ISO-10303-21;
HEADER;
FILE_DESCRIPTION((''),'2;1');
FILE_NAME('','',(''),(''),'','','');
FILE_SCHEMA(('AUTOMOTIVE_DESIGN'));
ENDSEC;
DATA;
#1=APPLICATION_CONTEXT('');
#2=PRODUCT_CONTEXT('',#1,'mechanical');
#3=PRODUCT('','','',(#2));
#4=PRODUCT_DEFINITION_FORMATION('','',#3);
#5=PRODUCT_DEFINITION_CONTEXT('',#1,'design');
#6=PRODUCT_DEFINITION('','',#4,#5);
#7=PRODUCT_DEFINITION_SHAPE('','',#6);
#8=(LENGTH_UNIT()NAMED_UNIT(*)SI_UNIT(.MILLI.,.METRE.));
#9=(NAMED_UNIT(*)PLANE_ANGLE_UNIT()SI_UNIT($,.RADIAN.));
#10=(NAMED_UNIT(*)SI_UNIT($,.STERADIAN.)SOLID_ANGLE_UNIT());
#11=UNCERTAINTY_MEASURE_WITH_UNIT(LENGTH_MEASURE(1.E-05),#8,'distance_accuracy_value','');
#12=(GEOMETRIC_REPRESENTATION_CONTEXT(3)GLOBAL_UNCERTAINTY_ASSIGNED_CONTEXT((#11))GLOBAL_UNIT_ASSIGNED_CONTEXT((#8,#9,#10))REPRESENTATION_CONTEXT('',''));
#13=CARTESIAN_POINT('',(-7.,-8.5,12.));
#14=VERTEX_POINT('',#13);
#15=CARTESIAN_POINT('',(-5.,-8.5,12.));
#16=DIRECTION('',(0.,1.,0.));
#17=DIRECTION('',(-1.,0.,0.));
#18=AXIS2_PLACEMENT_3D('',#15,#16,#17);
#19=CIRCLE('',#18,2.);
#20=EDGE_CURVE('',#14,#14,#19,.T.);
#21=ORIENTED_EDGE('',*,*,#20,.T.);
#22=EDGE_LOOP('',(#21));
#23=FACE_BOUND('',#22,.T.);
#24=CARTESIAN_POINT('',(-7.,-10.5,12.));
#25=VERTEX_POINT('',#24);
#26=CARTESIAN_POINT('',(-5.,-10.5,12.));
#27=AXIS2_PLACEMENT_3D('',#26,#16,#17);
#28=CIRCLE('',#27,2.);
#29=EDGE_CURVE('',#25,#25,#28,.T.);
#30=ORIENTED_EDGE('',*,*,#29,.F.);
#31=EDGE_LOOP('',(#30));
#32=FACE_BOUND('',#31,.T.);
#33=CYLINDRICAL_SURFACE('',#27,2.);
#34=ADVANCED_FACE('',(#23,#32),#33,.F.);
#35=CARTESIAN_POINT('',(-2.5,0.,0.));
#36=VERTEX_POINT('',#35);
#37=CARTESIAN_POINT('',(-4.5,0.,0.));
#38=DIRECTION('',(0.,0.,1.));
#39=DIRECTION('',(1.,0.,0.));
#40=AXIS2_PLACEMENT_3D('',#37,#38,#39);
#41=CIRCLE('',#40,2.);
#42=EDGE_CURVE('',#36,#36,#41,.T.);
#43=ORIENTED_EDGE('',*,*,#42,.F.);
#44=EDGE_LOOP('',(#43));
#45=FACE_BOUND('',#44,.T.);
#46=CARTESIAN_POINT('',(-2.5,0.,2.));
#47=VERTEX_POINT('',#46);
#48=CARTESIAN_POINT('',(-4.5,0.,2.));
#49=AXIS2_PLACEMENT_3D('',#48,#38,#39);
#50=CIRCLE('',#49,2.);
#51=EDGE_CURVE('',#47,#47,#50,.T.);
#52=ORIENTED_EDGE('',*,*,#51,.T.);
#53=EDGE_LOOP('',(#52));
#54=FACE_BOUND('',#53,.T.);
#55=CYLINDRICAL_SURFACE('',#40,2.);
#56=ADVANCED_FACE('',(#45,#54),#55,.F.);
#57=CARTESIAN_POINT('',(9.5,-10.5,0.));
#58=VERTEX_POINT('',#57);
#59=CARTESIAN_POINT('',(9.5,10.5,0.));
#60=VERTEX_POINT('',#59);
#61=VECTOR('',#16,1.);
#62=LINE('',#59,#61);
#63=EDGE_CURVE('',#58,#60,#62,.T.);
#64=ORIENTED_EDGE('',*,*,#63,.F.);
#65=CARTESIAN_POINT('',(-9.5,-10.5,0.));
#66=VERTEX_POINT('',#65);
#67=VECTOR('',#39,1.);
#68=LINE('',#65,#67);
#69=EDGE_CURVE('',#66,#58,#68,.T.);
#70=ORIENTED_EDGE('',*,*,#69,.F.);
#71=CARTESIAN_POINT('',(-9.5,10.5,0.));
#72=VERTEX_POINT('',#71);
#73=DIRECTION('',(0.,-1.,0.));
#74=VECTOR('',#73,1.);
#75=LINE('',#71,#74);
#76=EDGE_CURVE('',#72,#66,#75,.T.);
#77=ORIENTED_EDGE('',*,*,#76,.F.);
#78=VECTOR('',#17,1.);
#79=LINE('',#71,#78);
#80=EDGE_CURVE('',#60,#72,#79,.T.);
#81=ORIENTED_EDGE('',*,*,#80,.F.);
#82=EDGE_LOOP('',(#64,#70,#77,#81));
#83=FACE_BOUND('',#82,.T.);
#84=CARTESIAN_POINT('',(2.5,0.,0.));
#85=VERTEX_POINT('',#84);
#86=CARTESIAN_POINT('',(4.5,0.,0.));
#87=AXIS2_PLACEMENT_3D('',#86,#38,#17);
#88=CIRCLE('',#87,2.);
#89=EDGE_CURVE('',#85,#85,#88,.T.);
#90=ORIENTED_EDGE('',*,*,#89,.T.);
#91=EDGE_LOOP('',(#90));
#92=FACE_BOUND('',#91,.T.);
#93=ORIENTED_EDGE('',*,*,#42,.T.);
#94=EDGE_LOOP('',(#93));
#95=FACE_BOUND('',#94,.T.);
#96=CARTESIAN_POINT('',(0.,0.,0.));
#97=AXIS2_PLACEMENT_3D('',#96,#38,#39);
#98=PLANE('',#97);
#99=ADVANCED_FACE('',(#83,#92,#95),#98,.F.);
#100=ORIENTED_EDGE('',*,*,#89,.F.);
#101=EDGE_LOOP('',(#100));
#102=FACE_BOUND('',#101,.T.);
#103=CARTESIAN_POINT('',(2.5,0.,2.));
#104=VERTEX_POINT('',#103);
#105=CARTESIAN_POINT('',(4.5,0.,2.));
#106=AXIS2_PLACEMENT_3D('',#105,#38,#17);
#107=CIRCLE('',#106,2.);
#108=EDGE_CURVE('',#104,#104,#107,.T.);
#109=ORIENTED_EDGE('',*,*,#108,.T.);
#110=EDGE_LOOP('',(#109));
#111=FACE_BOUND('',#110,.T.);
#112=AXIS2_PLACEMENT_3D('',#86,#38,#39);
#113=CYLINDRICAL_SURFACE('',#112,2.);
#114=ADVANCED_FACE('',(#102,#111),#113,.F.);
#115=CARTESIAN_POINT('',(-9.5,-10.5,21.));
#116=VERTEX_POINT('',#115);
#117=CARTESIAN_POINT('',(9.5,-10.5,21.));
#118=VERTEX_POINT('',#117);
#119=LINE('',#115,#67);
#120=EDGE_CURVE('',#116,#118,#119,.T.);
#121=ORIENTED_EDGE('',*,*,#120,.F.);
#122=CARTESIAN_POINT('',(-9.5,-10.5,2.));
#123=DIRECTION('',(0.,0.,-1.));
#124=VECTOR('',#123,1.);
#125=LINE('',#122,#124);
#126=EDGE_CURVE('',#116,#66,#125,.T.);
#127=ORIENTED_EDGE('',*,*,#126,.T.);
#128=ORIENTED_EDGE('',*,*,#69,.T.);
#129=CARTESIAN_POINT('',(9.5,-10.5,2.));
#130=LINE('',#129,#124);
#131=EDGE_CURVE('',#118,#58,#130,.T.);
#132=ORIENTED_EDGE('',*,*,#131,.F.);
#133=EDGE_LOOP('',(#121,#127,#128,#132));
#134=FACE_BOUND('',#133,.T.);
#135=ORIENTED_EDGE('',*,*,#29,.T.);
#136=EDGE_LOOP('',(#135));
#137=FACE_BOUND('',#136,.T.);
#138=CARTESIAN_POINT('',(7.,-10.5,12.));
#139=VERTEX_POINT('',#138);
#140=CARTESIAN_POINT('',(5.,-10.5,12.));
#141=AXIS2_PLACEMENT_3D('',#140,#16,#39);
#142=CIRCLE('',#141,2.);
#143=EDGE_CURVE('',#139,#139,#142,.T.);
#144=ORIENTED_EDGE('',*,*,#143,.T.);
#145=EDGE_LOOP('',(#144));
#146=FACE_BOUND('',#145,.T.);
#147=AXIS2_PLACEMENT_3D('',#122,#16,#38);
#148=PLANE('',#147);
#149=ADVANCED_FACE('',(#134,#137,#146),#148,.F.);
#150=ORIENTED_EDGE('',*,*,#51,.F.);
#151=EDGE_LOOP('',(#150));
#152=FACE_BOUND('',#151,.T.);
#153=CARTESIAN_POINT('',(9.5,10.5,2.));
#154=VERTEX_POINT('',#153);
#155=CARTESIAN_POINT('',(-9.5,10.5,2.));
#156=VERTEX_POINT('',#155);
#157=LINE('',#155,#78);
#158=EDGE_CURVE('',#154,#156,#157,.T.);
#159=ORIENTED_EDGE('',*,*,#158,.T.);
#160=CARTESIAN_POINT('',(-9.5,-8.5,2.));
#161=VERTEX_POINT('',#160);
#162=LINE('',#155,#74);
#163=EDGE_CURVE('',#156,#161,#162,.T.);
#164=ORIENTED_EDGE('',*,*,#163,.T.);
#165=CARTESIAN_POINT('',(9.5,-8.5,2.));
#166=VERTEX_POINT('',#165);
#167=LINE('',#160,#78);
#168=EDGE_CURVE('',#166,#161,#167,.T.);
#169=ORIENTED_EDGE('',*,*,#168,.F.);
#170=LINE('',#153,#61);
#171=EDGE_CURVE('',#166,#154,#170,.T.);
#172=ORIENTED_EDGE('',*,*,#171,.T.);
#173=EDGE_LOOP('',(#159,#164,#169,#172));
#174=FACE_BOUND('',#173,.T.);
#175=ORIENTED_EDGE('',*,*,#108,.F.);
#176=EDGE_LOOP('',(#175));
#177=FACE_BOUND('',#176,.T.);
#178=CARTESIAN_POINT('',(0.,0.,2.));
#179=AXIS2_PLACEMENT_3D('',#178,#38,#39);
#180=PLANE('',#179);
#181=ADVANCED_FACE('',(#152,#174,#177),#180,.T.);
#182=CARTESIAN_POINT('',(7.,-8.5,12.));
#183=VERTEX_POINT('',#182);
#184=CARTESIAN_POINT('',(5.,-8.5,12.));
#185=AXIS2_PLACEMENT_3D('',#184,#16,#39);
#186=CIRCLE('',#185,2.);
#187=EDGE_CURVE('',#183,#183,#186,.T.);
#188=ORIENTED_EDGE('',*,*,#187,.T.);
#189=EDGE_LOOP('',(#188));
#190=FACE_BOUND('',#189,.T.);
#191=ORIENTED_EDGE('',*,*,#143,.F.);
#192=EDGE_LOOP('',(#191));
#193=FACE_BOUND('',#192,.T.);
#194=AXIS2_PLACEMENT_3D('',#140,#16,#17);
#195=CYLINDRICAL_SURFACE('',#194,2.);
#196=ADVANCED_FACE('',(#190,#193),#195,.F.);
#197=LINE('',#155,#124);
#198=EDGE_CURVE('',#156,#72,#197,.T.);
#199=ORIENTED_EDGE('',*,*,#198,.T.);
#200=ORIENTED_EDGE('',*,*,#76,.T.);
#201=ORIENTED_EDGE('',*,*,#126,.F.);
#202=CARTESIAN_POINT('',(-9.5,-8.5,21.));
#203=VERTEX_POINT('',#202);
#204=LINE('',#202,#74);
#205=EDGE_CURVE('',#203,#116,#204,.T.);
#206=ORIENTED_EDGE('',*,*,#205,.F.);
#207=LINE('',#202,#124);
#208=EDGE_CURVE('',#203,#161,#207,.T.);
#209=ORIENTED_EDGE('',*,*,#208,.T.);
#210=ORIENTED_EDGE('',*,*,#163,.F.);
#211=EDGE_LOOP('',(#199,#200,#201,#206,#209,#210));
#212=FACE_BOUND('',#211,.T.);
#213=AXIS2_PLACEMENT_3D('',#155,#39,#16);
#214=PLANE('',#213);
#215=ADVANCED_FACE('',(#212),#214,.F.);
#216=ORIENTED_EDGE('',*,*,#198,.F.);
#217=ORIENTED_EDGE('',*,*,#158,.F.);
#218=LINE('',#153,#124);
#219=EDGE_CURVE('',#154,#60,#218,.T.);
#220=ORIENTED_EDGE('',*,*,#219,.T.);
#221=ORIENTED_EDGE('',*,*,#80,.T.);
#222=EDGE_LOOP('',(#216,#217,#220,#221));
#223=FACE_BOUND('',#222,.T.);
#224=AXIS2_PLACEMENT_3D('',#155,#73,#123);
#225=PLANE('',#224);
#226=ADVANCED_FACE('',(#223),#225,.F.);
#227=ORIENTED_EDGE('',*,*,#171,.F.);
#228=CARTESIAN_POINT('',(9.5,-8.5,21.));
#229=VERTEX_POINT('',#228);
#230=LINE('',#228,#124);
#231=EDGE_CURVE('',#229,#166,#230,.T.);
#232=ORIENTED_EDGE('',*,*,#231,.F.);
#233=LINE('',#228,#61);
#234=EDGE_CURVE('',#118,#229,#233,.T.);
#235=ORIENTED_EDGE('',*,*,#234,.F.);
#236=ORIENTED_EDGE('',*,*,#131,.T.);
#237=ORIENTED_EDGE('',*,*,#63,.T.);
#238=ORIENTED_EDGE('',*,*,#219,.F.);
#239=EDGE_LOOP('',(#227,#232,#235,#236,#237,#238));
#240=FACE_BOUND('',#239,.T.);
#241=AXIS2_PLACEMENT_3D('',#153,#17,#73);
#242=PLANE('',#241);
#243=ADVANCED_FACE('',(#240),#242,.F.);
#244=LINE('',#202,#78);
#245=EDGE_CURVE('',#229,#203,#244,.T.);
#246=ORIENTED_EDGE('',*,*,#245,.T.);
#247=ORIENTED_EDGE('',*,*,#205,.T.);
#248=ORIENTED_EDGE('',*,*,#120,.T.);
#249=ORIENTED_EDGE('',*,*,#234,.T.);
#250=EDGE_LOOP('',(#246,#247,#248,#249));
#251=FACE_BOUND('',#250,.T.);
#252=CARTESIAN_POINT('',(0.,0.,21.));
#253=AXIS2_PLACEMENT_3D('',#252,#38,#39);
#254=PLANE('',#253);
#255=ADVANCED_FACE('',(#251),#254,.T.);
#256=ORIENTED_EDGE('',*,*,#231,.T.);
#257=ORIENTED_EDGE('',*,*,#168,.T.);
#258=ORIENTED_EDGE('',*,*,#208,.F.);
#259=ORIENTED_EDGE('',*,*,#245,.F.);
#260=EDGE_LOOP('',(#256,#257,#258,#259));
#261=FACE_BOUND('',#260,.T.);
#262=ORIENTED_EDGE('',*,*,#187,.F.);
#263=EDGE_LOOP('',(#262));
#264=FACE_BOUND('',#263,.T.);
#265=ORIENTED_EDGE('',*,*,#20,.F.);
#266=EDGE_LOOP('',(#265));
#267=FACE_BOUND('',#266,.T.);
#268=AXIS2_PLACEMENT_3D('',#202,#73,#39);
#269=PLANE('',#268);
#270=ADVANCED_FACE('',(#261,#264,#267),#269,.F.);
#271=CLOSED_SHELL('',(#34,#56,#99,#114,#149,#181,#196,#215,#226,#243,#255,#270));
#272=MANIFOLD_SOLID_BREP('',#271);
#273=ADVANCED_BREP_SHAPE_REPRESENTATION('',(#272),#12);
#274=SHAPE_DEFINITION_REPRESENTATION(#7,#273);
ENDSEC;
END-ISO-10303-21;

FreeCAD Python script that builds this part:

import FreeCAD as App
import Part
import Sketcher
from FreeCAD import Vector

doc = App.newDocument("Part")
body = doc.addObject("PartDesign::Body", "Body")

# Sketch on XY plane
sketch1 = body.newObject("Sketcher::SketchObject", "Sketch")
sketch1.AttachmentSupport = (doc.getObject("XY_Plane"), [""])
sketch1.MapMode = "FlatFace"
sketch1.addGeometry(Part.LineSegment(Vector(-9.5, 10.5, 0), Vector(-9.5, -10.5, 0)), False)
sketch1.addGeometry(Part.LineSegment(Vector(-9.5, -10.5, 0), Vector(9.5, -10.5, 0)), False)
sketch1.addGeometry(Part.LineSegment(Vector(9.5, -10.5, 0), Vector(9.5, 10.5, 0)), False)
sketch1.addGeometry(Part.LineSegment(Vector(9.5, 10.5, 0), Vector(-9.5, 10.5, 0)), False)
sketch1.addConstraint(Sketcher.Constraint("Coincident", 0, 2, 1, 1))
sketch1.addConstraint(Sketcher.Constraint("Coincident", 1, 2, 2, 1))
sketch1.addConstraint(Sketcher.Constraint("Coincident", 2, 2, 3, 1))
sketch1.addConstraint(Sketcher.Constraint("Coincident", 3, 2, 0, 1))
sketch1.addConstraint(Sketcher.Constraint("Vertical", 0))
sketch1.addConstraint(Sketcher.Constraint("Horizontal", 1))
sketch1.addConstraint(Sketcher.Constraint("Vertical", 2))
sketch1.addConstraint(Sketcher.Constraint("Horizontal", 3))
sketch1.addConstraint(Sketcher.Constraint("Symmetric", 0, 2, 2, 2, -1, 1))
sketch1.addConstraint(Sketcher.Constraint("DistanceX", 1, 1, 1, 2, 19.0))
sketch1.addConstraint(Sketcher.Constraint("DistanceY", 0, 2, 0, 1, 21.0))
pad1 = body.newObject("PartDesign::Pad", "Pad")
pad1.Profile = sketch1
pad1.Length = 2

# Sketch on XY plane
sketch2 = body.newObject("Sketcher::SketchObject", "Sketch001")
sketch2.AttachmentSupport = (doc.getObject("XY_Plane"), [""])
sketch2.MapMode = "FlatFace"
sketch2.AttachmentOffset = App.Placement(Vector(0, 0, 2), App.Rotation())
sketch2.addGeometry(Part.LineSegment(Vector(-9.5, -8.5, 0), Vector(-9.5, -10.5, 0)), False)
sketch2.addGeometry(Part.LineSegment(Vector(-9.5, -10.5, 0), Vector(9.5, -10.5, 0)), False)
sketch2.addGeometry(Part.LineSegment(Vector(9.5, -10.5, 0), Vector(9.5, -8.5, 0)), False)
sketch2.addGeometry(Part.LineSegment(Vector(9.5, -8.5, 0), Vector(-9.5, -8.5, 0)), False)
sketch2.addConstraint(Sketcher.Constraint("Coincident", 0, 2, 1, 1))
sketch2.addConstraint(Sketcher.Constraint("Coincident", 1, 2, 2, 1))
sketch2.addConstraint(Sketcher.Constraint("Coincident", 2, 2, 3, 1))
sketch2.addConstraint(Sketcher.Constraint("Coincident", 3, 2, 0, 1))
sketch2.addConstraint(Sketcher.Constraint("Vertical", 0))
sketch2.addConstraint(Sketcher.Constraint("Horizontal", 1))
sketch2.addConstraint(Sketcher.Constraint("Vertical", 2))
sketch2.addConstraint(Sketcher.Constraint("Horizontal", 3))
sketch2.addConstraint(Sketcher.Constraint("DistanceX", 1, 1, 1, 2, 19.0))
sketch2.addConstraint(Sketcher.Constraint("DistanceY", 0, 2, 0, 1, 2.0))
sketch2.addConstraint(Sketcher.Constraint("DistanceX", 0, 2, -1, 1, 9.5))
sketch2.addConstraint(Sketcher.Constraint("DistanceY", 0, 2, -1, 1, 10.5))
pad2 = body.newObject("PartDesign::Pad", "Pad001")
pad2.Profile = sketch2
pad2.Length = 19

# Sketch on XY plane
sketch3 = body.newObject("Sketcher::SketchObject", "Sketch002")
sketch3.AttachmentSupport = (doc.getObject("XY_Plane"), [""])
sketch3.MapMode = "FlatFace"
sketch3.AttachmentOffset = App.Placement(Vector(0, 0, 2), App.Rotation())
sketch3.addGeometry(Part.Circle(Vector(-4.5, 0, 0), Vector(0, 0, 1), 2), False)
sketch3.addGeometry(Part.Circle(Vector(4.5, 0, 0), Vector(0, 0, 1), 2), False)
sketch3.addConstraint(Sketcher.Constraint("Equal", 0, 1))
sketch3.addConstraint(Sketcher.Constraint("Symmetric", 0, 3, 1, 3, -1, 1))
sketch3.addConstraint(Sketcher.Constraint("PointOnObject", 0, 3, -1))
sketch3.addConstraint(Sketcher.Constraint("Diameter", 0, 4.0))
sketch3.addConstraint(Sketcher.Constraint("DistanceX", 0, 3, 1, 3, 9.0))
pocket1 = body.newObject("PartDesign::Pocket", "Pocket")
pocket1.Profile = sketch3
pocket1.Length = 2

# Sketch on XZ plane
sketch4 = body.newObject("Sketcher::SketchObject", "Sketch003")
sketch4.AttachmentSupport = (doc.getObject("XZ_Plane"), [""])
sketch4.MapMode = "FlatFace"
sketch4.AttachmentOffset = App.Placement(Vector(0, 0, 8.5), App.Rotation())
sketch4.addGeometry(Part.Circle(Vector(-5, 12, 0), Vector(0, 0, 1), 2), False)
sketch4.addGeometry(Part.Circle(Vector(5, 12, 0), Vector(0, 0, 1), 2), False)
sketch4.addConstraint(Sketcher.Constraint("Equal", 0, 1))
sketch4.addConstraint(Sketcher.Constraint("Symmetric", 0, 3, 1, 3, -2))
sketch4.addConstraint(Sketcher.Constraint("Diameter", 0, 4.0))
sketch4.addConstraint(Sketcher.Constraint("DistanceX", 0, 3, -1, 1, 5.0))
sketch4.addConstraint(Sketcher.Constraint("DistanceY", -1, 1, 0, 3, 12.0))
pocket2 = body.newObject("PartDesign::Pocket", "Pocket001")
pocket2.Profile = sketch4
pocket2.Length = 2
pocket2.Reversed = True

doc.recompute()
